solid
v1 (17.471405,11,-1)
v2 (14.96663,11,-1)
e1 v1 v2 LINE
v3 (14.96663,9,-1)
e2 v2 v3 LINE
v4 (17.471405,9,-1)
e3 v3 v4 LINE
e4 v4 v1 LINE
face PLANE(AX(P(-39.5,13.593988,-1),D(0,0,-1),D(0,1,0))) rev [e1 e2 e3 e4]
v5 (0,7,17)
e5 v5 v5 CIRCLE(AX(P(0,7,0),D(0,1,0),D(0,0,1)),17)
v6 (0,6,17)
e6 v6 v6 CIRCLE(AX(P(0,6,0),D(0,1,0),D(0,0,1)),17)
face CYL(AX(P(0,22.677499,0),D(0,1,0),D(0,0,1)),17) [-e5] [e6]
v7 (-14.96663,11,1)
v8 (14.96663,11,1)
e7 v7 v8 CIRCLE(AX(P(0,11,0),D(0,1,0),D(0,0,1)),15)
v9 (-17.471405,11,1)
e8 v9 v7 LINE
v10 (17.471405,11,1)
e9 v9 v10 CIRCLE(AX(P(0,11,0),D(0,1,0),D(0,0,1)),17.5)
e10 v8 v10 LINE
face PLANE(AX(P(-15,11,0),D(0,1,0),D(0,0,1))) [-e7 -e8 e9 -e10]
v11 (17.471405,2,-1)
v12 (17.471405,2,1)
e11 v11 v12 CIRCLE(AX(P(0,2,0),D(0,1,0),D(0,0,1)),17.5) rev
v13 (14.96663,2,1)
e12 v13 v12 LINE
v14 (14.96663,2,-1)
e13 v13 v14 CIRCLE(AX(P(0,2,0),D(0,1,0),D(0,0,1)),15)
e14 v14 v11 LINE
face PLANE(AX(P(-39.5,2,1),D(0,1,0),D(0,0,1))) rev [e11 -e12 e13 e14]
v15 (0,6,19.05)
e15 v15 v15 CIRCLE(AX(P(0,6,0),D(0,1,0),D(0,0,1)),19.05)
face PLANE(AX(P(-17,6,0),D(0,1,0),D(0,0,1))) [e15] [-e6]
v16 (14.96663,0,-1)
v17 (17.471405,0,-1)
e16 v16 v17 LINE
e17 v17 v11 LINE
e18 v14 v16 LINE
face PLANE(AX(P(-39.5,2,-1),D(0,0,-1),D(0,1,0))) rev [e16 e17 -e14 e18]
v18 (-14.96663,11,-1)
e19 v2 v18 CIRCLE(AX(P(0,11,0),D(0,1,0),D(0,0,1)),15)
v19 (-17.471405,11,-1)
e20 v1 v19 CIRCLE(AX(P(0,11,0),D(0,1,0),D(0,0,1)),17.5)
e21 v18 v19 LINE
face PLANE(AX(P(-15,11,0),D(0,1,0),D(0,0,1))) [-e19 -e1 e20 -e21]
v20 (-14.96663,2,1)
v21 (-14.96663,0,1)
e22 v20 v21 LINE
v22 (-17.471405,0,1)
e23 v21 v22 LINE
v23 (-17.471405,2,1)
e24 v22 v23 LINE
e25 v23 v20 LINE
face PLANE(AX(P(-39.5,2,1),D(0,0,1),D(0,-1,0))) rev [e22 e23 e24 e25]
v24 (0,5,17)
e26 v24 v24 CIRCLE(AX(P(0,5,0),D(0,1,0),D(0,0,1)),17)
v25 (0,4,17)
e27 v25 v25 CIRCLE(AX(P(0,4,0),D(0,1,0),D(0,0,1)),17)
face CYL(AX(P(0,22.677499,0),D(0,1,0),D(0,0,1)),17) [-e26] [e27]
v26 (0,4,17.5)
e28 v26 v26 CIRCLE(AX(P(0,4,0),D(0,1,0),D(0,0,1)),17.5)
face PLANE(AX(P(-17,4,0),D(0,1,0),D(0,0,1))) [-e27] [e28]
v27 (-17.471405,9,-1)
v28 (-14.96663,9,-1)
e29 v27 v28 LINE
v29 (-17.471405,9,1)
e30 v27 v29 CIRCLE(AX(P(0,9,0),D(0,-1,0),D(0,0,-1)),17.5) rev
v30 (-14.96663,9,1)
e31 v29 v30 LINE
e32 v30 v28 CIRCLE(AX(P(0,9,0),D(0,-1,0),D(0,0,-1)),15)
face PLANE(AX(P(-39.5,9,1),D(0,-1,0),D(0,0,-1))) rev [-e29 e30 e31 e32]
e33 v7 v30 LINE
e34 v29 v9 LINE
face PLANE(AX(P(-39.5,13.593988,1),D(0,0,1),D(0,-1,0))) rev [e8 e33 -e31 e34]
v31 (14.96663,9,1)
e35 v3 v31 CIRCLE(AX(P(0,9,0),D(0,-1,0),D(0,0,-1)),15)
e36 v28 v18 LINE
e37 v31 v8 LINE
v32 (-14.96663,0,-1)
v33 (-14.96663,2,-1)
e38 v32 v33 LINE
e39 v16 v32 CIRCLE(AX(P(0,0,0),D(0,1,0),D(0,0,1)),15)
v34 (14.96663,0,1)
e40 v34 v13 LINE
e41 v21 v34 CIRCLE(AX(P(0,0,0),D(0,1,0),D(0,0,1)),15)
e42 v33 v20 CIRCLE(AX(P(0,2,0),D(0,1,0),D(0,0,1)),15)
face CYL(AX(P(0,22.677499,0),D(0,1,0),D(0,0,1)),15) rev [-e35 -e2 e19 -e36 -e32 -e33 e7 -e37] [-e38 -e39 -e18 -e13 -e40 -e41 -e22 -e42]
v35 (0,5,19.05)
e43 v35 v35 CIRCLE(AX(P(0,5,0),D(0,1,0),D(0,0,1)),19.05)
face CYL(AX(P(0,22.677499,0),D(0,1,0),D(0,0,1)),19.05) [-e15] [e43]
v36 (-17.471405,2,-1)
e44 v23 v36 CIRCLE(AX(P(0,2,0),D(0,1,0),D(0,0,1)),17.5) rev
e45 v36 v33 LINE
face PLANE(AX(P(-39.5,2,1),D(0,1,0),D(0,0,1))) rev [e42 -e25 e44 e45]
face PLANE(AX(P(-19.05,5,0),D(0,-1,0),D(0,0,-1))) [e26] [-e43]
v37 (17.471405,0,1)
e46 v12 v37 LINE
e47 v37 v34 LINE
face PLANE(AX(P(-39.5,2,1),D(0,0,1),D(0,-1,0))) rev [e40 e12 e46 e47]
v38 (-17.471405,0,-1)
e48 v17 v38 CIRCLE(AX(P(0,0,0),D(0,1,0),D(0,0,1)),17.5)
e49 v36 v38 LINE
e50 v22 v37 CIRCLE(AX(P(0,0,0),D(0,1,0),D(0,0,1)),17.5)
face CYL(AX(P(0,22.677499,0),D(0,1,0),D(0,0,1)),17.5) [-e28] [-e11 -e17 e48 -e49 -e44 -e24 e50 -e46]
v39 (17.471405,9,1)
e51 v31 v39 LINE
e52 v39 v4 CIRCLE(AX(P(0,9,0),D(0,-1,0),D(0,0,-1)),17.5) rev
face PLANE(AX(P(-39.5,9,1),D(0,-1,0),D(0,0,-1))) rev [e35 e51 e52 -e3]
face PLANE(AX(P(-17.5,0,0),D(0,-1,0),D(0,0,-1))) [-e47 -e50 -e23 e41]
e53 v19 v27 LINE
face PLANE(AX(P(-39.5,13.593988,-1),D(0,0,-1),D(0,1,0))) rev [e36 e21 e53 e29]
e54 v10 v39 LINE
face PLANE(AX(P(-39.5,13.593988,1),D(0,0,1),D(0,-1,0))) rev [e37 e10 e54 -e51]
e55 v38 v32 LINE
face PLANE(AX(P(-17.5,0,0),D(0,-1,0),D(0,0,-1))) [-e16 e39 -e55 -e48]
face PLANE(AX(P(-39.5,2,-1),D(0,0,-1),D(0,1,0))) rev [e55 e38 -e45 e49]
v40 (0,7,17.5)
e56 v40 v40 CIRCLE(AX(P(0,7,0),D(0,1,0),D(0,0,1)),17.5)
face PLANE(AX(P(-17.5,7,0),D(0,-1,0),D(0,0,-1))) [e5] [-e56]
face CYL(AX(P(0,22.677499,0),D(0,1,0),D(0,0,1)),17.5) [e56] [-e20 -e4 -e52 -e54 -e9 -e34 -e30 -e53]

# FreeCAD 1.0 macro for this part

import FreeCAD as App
import Part
import Sketcher

V = App.Vector

doc = App.newDocument("Part")
body = doc.addObject("PartDesign::Body", "Body")

# Sketch on XY plane
sketch1 = doc.addObject("Sketcher::SketchObject", "Sketch")
body.addObject(sketch1)
sketch1.AttachmentSupport = (doc.XY_Plane, [""])
sketch1.MapMode = "FlatFace"
sketch1.addGeometry([
    Part.LineSegment(V(-15, 11, 0), V(-17.5, 11, 0)),  # 0
    Part.LineSegment(V(-17.5, 11, 0), V(-17.5, 7, 0)),  # 1
    Part.LineSegment(V(-17.5, 7, 0), V(-17, 7, 0)),  # 2
    Part.LineSegment(V(-17, 7, 0), V(-17, 6, 0)),  # 3
    Part.LineSegment(V(-17, 6, 0), V(-19.1, 6, 0)),  # 4
    Part.LineSegment(V(-19.1, 6, 0), V(-19.1, 5, 0)),  # 5
    Part.LineSegment(V(-19.1, 5, 0), V(-17, 5, 0)),  # 6
    Part.LineSegment(V(-17, 5, 0), V(-17, 4, 0)),  # 7
    Part.LineSegment(V(-17, 4, 0), V(-17.5, 4, 0)),  # 8
    Part.LineSegment(V(-17.5, 4, 0), V(-17.5, 0, 0)),  # 9
    Part.LineSegment(V(-17.5, 0, 0), V(-15, 0, 0)),  # 10
    Part.LineSegment(V(-15, 0, 0), V(-15, 11, 0)),  # 11
], False)
sketch1.addConstraint([
    Sketcher.Constraint("Coincident", 0, 2, 1, 1),
    Sketcher.Constraint("Coincident", 1, 2, 2, 1),
    Sketcher.Constraint("Coincident", 2, 2, 3, 1),
    Sketcher.Constraint("Coincident", 3, 2, 4, 1),
    Sketcher.Constraint("Coincident", 4, 2, 5, 1),
    Sketcher.Constraint("Coincident", 5, 2, 6, 1),
    Sketcher.Constraint("Coincident", 6, 2, 7, 1),
    Sketcher.Constraint("Coincident", 7, 2, 8, 1),
    Sketcher.Constraint("Coincident", 8, 2, 9, 1),
    Sketcher.Constraint("Coincident", 9, 2, 10, 1),
    Sketcher.Constraint("Coincident", 10, 2, 11, 1),
    Sketcher.Constraint("Coincident", 11, 2, 0, 1),
    Sketcher.Constraint("Horizontal", 0),
    Sketcher.Constraint("Vertical", 1),
    Sketcher.Constraint("Horizontal", 2),
    Sketcher.Constraint("Vertical", 3),
    Sketcher.Constraint("Horizontal", 4),
    Sketcher.Constraint("Vertical", 5),
    Sketcher.Constraint("Horizontal", 6),
    Sketcher.Constraint("Vertical", 7),
    Sketcher.Constraint("Horizontal", 8),
    Sketcher.Constraint("Vertical", 9),
    Sketcher.Constraint("Horizontal", 10),
    Sketcher.Constraint("Vertical", 11),
    Sketcher.Constraint("PointOnObject", 9, 2, -1),
    Sketcher.Constraint("Vertical", 3, 2, 6, 2),
    Sketcher.Constraint("Vertical", 1, 2, 8, 2),
    Sketcher.Constraint("Equal", 3, 5),
    Sketcher.Constraint("Equal", 5, 7),
    Sketcher.Constraint("Equal", 1, 9),
    Sketcher.Constraint("DistanceY", 1, 2, 1, 1, 4.0),
    Sketcher.Constraint("DistanceY", 3, 2, 3, 1, 1.0),
    Sketcher.Constraint("DistanceX", 0, 2, 0, 1, 2.5),
    Sketcher.Constraint("DistanceX", 2, 1, 2, 2, 0.5),
    Sketcher.Constraint("DistanceX", 2, 2, -1, 1, 17.0),
    Sketcher.Constraint("DistanceX", 4, 2, 4, 1, 2.05),
])
revolution = doc.addObject("PartDesign::Revolution", "Revolution")
body.addObject(revolution)
revolution.Profile = sketch1
revolution.ReferenceAxis = (sketch1, ["V_Axis"])
revolution.Angle = 360

# Sketch on YZ plane
sketch2 = doc.addObject("Sketcher::SketchObject", "Sketch001")
body.addObject(sketch2)
sketch2.AttachmentSupport = (doc.YZ_Plane, [""])
sketch2.MapMode = "FlatFace"
sketch2.addGeometry([
    Part.LineSegment(V(13.6, 1, 0), V(9, 1, 0)),  # 0
    Part.LineSegment(V(9, 1, 0), V(9, -1, 0)),  # 1
    Part.LineSegment(V(9, -1, 0), V(13.6, -1, 0)),  # 2
    Part.LineSegment(V(13.6, -1, 0), V(13.6, 1, 0)),  # 3
    Part.LineSegment(V(2, 1, 0), V(-4.7, 1, 0)),  # 4
    Part.LineSegment(V(-4.7, 1, 0), V(-4.7, -1, 0)),  # 5
    Part.LineSegment(V(-4.7, -1, 0), V(2, -1, 0)),  # 6
    Part.LineSegment(V(2, -1, 0), V(2, 1, 0)),  # 7
], False)
sketch2.addConstraint([
    Sketcher.Constraint("Coincident", 0, 2, 1, 1),
    Sketcher.Constraint("Coincident", 1, 2, 2, 1),
    Sketcher.Constraint("Coincident", 2, 2, 3, 1),
    Sketcher.Constraint("Coincident", 3, 2, 0, 1),
    Sketcher.Constraint("Coincident", 4, 2, 5, 1),
    Sketcher.Constraint("Coincident", 5, 2, 6, 1),
    Sketcher.Constraint("Coincident", 6, 2, 7, 1),
    Sketcher.Constraint("Coincident", 7, 2, 4, 1),
    Sketcher.Constraint("Horizontal", 0),
    Sketcher.Constraint("Vertical", 1),
    Sketcher.Constraint("Horizontal", 2),
    Sketcher.Constraint("Vertical", 3),
    Sketcher.Constraint("Horizontal", 4),
    Sketcher.Constraint("Vertical", 5),
    Sketcher.Constraint("Horizontal", 6),
    Sketcher.Constraint("Vertical", 7),
    Sketcher.Constraint("Horizontal", 3, 2, 4, 2),
    Sketcher.Constraint("Horizontal", 2, 2, 5, 2),
    Sketcher.Constraint("DistanceY", 1, 2, 1, 1, 2.0),
    Sketcher.Constraint("DistanceX", -1, 1, 0, 2, 9.0),
    Sketcher.Constraint("DistanceY", -1, 1, 0, 2, 1.0),
    Sketcher.Constraint("DistanceX", -1, 1, 6, 2, 2.0),
    Sketcher.Constraint("DistanceX", 0, 2, 0, 1, 4.593988),
    Sketcher.Constraint("DistanceX", 4, 2, 4, 1, 6.667892),
])
pocket1 = doc.addObject("PartDesign::Pocket", "Pocket")
body.addObject(pocket1)
pocket1.Profile = sketch2
pocket1.Length = 79
pocket1.Midplane = True

doc.recompute()
